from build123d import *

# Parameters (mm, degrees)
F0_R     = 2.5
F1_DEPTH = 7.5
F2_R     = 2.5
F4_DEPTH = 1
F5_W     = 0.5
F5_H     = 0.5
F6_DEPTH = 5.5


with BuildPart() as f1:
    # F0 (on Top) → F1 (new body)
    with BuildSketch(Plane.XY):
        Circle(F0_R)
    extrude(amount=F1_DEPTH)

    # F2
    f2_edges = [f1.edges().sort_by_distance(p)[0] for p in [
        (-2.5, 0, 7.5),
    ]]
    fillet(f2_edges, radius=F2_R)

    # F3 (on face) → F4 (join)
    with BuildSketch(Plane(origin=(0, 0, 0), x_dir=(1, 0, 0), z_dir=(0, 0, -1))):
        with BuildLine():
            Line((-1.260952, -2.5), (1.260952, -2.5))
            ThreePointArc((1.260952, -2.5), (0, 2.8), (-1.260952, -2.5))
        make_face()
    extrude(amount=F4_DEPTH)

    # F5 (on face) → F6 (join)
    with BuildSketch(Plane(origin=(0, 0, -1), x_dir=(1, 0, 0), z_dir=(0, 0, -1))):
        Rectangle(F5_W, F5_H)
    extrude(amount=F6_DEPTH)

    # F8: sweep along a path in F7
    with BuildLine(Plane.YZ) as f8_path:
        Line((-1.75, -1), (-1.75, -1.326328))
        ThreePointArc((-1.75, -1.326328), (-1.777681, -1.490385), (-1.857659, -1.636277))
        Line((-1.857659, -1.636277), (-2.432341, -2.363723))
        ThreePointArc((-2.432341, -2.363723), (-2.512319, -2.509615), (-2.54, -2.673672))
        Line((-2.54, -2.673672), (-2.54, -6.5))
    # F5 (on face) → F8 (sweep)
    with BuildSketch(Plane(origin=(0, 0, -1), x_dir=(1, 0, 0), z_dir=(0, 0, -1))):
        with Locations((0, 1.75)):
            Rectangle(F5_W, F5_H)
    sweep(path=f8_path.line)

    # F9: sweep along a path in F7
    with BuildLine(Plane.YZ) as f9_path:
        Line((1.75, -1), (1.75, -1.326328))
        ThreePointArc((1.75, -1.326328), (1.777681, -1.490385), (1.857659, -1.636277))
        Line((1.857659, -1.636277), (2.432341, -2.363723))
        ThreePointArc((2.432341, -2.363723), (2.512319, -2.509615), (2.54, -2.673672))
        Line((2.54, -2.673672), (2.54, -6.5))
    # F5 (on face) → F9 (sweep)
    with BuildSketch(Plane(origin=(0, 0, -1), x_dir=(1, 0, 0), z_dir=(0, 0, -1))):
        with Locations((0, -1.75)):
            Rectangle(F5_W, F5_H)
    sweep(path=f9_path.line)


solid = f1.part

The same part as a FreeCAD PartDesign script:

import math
import FreeCAD as App
import Part
import Sketcher
from FreeCAD import Vector
Q = App.Units.Quantity


def edges_at(feature, points):
    """Names of the edges that pass closest to the given points."""
    edges = feature.Shape.Edges
    near = lambda p: min(range(len(edges)), key=lambda i: edges[i].distToShape(Part.Vertex(*p))[0])
    return sorted({f"Edge{near(p) + 1}" for p in points})

doc = App.newDocument("Part")
body = doc.addObject("PartDesign::Body", "Body")

sketch1 = body.newObject("Sketcher::SketchObject", "Sketch")
sketch1.AttachmentSupport = (doc.getObject("XY_Plane"), [""])
sketch1.MapMode = "FlatFace"
sketch1.addGeometry(Part.Circle(Vector(0, 0, 0), Vector(0, 0, 1), 2.5), False)
sketch1.addConstraint([
    Sketcher.Constraint("Coincident", 0, 3, -1, 1),
    Sketcher.Constraint("Diameter", 0, Q("5 mm")),
])
pad1 = body.newObject("PartDesign::Pad", "Pad")
pad1.Profile = sketch1
pad1.Length = 7.5
doc.recompute()

fillet = body.newObject("PartDesign::Fillet", "Fillet")
fillet.Base = (pad1, edges_at(pad1, [(-2.5, 0, 7.5)]))
fillet.Radius = 2.5

sketch2 = body.newObject("Sketcher::SketchObject", "Sketch001")
sketch2.AttachmentSupport = (doc.getObject("XY_Plane"), [""])
sketch2.MapMode = "FlatFace"
sketch2.addGeometry([
    Part.LineSegment(Vector(-1.260952, 2.5, 0), Vector(1.260952, 2.5, 0)),
    Part.ArcOfCircle(Part.Circle(Vector(0, 0, 0), Vector(0, 0, 1), 2.8), math.radians(116.7655), math.radians(423.2345)),
], False)
sketch2.addConstraint([
    Sketcher.Constraint("Coincident", 0, 1, 1, 1),
    Sketcher.Constraint("Coincident", 1, 2, 0, 2),
    Sketcher.Constraint("Horizontal", 0),
    Sketcher.Constraint("Coincident", 1, 3, -1, 1),
    Sketcher.Constraint("Radius", 1, Q("2.8 mm")),
    Sketcher.Constraint("DistanceY", -1, 1, 0, 1, Q("2.5 mm")),
])
pad2 = body.newObject("PartDesign::Pad", "Pad001")
pad2.Profile = sketch2
pad2.Length = 1
pad2.Reversed = True

sketch3 = body.newObject("Sketcher::SketchObject", "Sketch002")
sketch3.AttachmentSupport = (doc.getObject("XY_Plane"), [""])
sketch3.MapMode = "FlatFace"
sketch3.AttachmentOffset = App.Placement(Vector(0, 0, -1), App.Rotation())
sketch3.addGeometry([
    Part.LineSegment(Vector(-0.25, -0.25, 0), Vector(-0.25, 0.25, 0)),
    Part.LineSegment(Vector(-0.25, 0.25, 0), Vector(0.25, 0.25, 0)),
    Part.LineSegment(Vector(0.25, 0.25, 0), Vector(0.25, -0.25, 0)),
    Part.LineSegment(Vector(0.25, -0.25, 0), Vector(-0.25, -0.25, 0)),
], False)
sketch3.addConstraint([
    Sketcher.Constraint("Coincident", 0, 2, 1, 1),
    Sketcher.Constraint("Coincident", 1, 2, 2, 1),
    Sketcher.Constraint("Coincident", 2, 2, 3, 1),
    Sketcher.Constraint("Coincident", 3, 2, 0, 1),
    Sketcher.Constraint("Vertical", 0),
    Sketcher.Constraint("Horizontal", 1),
    Sketcher.Constraint("Vertical", 2),
    Sketcher.Constraint("Horizontal", 3),
    Sketcher.Constraint("Symmetric", 0, 2, 2, 2, -1, 1),
    Sketcher.Constraint("Equal", 3, 0),
    Sketcher.Constraint("DistanceX", 1, 1, 1, 2, Q("0.5 mm")),
])
pad3 = body.newObject("PartDesign::Pad", "Pad002")
pad3.Profile = sketch3
pad3.Length = 5.5
pad3.Reversed = True

sketch4 = body.newObject("Sketcher::SketchObject", "Sketch003")
sketch4.AttachmentSupport = (doc.getObject("XY_Plane"), [""])
sketch4.MapMode = "FlatFace"
sketch4.AttachmentOffset = App.Placement(Vector(0, 0, -1), App.Rotation())
sketch4.addGeometry([
    Part.LineSegment(Vector(-0.25, -2, 0), Vector(-0.25, -1.5, 0)),
    Part.LineSegment(Vector(-0.25, -1.5, 0), Vector(0.25, -1.5, 0)),
    Part.LineSegment(Vector(0.25, -1.5, 0), Vector(0.25, -2, 0)),
    Part.LineSegment(Vector(0.25, -2, 0), Vector(-0.25, -2, 0)),
], False)
sketch4.addConstraint([
    Sketcher.Constraint("Coincident", 0, 2, 1, 1),
    Sketcher.Constraint("Coincident", 1, 2, 2, 1),
    Sketcher.Constraint("Coincident", 2, 2, 3, 1),
    Sketcher.Constraint("Coincident", 3, 2, 0, 1),
    Sketcher.Constraint("Vertical", 0),
    Sketcher.Constraint("Horizontal", 1),
    Sketcher.Constraint("Vertical", 2),
    Sketcher.Constraint("Horizontal", 3),
    Sketcher.Constraint("Equal", 3, 0),
    Sketcher.Constraint("DistanceX", 1, 1, 1, 2, Q("0.5 mm")),
    Sketcher.Constraint("DistanceY", 2, 2, -1, 1, Q("2 mm")),
    Sketcher.Constraint("DistanceX", 0, 2, -1, 1, Q("0.25 mm")),
])

sketch5 = body.newObject("Sketcher::SketchObject", "Sketch004")
sketch5.AttachmentSupport = (doc.getObject("YZ_Plane"), [""])
sketch5.MapMode = "FlatFace"
sketch5.addGeometry([
    Part.LineSegment(Vector(-1.75, -1, 0), Vector(-1.75, -1.326328, 0)),
    Part.ArcOfCircle(Part.Circle(Vector(-2.25, -1.326328, 0), Vector(0, 0, 1), 0.5), math.radians(-38.308737), math.radians(-0.000015)),
    Part.LineSegment(Vector(-1.857659, -1.636277, 0), Vector(-2.432341, -2.363723, 0)),
    Part.ArcOfCircle(Part.Circle(Vector(-2.04, -2.673672, 0), Vector(0, 0, 1), 0.5), math.radians(141.691263), math.radians(179.999985)),
    Part.LineSegment(Vector(-2.54, -2.673672, 0), Vector(-2.54, -6.5, 0)),
], False)
sketch5.addConstraint([
    Sketcher.Constraint("Tangent", 0, 2, 1, 2),
    Sketcher.Constraint("Tangent", 1, 1, 2, 1),
    Sketcher.Constraint("Tangent", 2, 2, 3, 1),
    Sketcher.Constraint("Tangent", 3, 2, 4, 1),
    Sketcher.Constraint("Vertical", 0),
    Sketcher.Constraint("Vertical", 4),
    Sketcher.Constraint("Equal", 1, 3),
    Sketcher.Constraint("Radius", 1, Q("0.5 mm")),
    Sketcher.Constraint("DistanceY", 0, 1, -1, 1, Q("1 mm")),
    Sketcher.Constraint("DistanceY", 4, 2, -1, 1, Q("6.5 mm")),
    Sketcher.Constraint("DistanceX", 1, 3, -1, 1, Q("2.25 mm")),
    Sketcher.Constraint("DistanceX", 3, 3, -1, 1, Q("2.04 mm")),
    Sketcher.Constraint("DistanceY", 4, 2, 4, 1, Q("3.826328 mm")),
    Sketcher.Constraint("Distance", 2, Q("0.927058 mm")),
])
doc.recompute()

additivepipe = body.newObject("PartDesign::AdditivePipe", "AdditivePipe")
additivepipe.Profile = sketch4
additivepipe.Spine = (sketch5, ["Edge1", "Edge2", "Edge3", "Edge4", "Edge5"])

sketch6 = body.newObject("Sketcher::SketchObject", "Sketch005")
sketch6.AttachmentSupport = (doc.getObject("XY_Plane"), [""])
sketch6.MapMode = "FlatFace"
sketch6.AttachmentOffset = App.Placement(Vector(0, 0, -1), App.Rotation())
sketch6.addGeometry([
    Part.LineSegment(Vector(-0.25, 1.5, 0), Vector(-0.25, 2, 0)),
    Part.LineSegment(Vector(-0.25, 2, 0), Vector(0.25, 2, 0)),
    Part.LineSegment(Vector(0.25, 2, 0), Vector(0.25, 1.5, 0)),
    Part.LineSegment(Vector(0.25, 1.5, 0), Vector(-0.25, 1.5, 0)),
], False)
sketch6.addConstraint([
    Sketcher.Constraint("Coincident", 0, 2, 1, 1),
    Sketcher.Constraint("Coincident", 1, 2, 2, 1),
    Sketcher.Constraint("Coincident", 2, 2, 3, 1),
    Sketcher.Constraint("Coincident", 3, 2, 0, 1),
    Sketcher.Constraint("Vertical", 0),
    Sketcher.Constraint("Horizontal", 1),
    Sketcher.Constraint("Vertical", 2),
    Sketcher.Constraint("Horizontal", 3),
    Sketcher.Constraint("Equal", 3, 0),
    Sketcher.Constraint("DistanceX", 1, 1, 1, 2, Q("0.5 mm")),
    Sketcher.Constraint("DistanceY", -1, 1, 0, 2, Q("2 mm")),
    Sketcher.Constraint("DistanceX", 0, 2, -1, 1, Q("0.25 mm")),
])

sketch7 = body.newObject("Sketcher::SketchObject", "Sketch006")
sketch7.AttachmentSupport = (doc.getObject("YZ_Plane"), [""])
sketch7.MapMode = "FlatFace"
sketch7.addGeometry([
    Part.LineSegment(Vector(1.75, -1, 0), Vector(1.75, -1.326328, 0)),
    Part.ArcOfCircle(Part.Circle(Vector(2.25, -1.326328, 0), Vector(0, 0, 1), 0.5), math.radians(-179.999985), math.radians(-141.691263)),
    Part.LineSegment(Vector(1.857659, -1.636277, 0), Vector(2.432341, -2.363723, 0)),
    Part.ArcOfCircle(Part.Circle(Vector(2.04, -2.673672, 0), Vector(0, 0, 1), 0.5), math.radians(0.000015), math.radians(38.308737)),
    Part.LineSegment(Vector(2.54, -2.673672, 0), Vector(2.54, -6.5, 0)),
], False)
sketch7.addConstraint([
    Sketcher.Constraint("Tangent", 0, 2, 1, 1),
    Sketcher.Constraint("Tangent", 1, 2, 2, 1),
    Sketcher.Constraint("Tangent", 2, 2, 3, 2),
    Sketcher.Constraint("Tangent", 3, 1, 4, 1),
    Sketcher.Constraint("Vertical", 0),
    Sketcher.Constraint("Vertical", 4),
    Sketcher.Constraint("Equal", 1, 3),
    Sketcher.Constraint("Radius", 1, Q("0.5 mm")),
    Sketcher.Constraint("DistanceY", 0, 1, -1, 1, Q("1 mm")),
    Sketcher.Constraint("DistanceY", 4, 2, -1, 1, Q("6.5 mm")),
    Sketcher.Constraint("DistanceX", -1, 1, 1, 3, Q("2.25 mm")),
    Sketcher.Constraint("DistanceX", -1, 1, 3, 3, Q("2.04 mm")),
    Sketcher.Constraint("DistanceY", 4, 2, 4, 1, Q("3.826328 mm")),
    Sketcher.Constraint("Distance", 2, Q("0.927058 mm")),
])
doc.recompute()

additivepipe2 = body.newObject("PartDesign::AdditivePipe", "AdditivePipe001")
additivepipe2.Profile = sketch6
additivepipe2.Spine = (sketch7, ["Edge1", "Edge2", "Edge3", "Edge4", "Edge5"])

doc.recompute()
